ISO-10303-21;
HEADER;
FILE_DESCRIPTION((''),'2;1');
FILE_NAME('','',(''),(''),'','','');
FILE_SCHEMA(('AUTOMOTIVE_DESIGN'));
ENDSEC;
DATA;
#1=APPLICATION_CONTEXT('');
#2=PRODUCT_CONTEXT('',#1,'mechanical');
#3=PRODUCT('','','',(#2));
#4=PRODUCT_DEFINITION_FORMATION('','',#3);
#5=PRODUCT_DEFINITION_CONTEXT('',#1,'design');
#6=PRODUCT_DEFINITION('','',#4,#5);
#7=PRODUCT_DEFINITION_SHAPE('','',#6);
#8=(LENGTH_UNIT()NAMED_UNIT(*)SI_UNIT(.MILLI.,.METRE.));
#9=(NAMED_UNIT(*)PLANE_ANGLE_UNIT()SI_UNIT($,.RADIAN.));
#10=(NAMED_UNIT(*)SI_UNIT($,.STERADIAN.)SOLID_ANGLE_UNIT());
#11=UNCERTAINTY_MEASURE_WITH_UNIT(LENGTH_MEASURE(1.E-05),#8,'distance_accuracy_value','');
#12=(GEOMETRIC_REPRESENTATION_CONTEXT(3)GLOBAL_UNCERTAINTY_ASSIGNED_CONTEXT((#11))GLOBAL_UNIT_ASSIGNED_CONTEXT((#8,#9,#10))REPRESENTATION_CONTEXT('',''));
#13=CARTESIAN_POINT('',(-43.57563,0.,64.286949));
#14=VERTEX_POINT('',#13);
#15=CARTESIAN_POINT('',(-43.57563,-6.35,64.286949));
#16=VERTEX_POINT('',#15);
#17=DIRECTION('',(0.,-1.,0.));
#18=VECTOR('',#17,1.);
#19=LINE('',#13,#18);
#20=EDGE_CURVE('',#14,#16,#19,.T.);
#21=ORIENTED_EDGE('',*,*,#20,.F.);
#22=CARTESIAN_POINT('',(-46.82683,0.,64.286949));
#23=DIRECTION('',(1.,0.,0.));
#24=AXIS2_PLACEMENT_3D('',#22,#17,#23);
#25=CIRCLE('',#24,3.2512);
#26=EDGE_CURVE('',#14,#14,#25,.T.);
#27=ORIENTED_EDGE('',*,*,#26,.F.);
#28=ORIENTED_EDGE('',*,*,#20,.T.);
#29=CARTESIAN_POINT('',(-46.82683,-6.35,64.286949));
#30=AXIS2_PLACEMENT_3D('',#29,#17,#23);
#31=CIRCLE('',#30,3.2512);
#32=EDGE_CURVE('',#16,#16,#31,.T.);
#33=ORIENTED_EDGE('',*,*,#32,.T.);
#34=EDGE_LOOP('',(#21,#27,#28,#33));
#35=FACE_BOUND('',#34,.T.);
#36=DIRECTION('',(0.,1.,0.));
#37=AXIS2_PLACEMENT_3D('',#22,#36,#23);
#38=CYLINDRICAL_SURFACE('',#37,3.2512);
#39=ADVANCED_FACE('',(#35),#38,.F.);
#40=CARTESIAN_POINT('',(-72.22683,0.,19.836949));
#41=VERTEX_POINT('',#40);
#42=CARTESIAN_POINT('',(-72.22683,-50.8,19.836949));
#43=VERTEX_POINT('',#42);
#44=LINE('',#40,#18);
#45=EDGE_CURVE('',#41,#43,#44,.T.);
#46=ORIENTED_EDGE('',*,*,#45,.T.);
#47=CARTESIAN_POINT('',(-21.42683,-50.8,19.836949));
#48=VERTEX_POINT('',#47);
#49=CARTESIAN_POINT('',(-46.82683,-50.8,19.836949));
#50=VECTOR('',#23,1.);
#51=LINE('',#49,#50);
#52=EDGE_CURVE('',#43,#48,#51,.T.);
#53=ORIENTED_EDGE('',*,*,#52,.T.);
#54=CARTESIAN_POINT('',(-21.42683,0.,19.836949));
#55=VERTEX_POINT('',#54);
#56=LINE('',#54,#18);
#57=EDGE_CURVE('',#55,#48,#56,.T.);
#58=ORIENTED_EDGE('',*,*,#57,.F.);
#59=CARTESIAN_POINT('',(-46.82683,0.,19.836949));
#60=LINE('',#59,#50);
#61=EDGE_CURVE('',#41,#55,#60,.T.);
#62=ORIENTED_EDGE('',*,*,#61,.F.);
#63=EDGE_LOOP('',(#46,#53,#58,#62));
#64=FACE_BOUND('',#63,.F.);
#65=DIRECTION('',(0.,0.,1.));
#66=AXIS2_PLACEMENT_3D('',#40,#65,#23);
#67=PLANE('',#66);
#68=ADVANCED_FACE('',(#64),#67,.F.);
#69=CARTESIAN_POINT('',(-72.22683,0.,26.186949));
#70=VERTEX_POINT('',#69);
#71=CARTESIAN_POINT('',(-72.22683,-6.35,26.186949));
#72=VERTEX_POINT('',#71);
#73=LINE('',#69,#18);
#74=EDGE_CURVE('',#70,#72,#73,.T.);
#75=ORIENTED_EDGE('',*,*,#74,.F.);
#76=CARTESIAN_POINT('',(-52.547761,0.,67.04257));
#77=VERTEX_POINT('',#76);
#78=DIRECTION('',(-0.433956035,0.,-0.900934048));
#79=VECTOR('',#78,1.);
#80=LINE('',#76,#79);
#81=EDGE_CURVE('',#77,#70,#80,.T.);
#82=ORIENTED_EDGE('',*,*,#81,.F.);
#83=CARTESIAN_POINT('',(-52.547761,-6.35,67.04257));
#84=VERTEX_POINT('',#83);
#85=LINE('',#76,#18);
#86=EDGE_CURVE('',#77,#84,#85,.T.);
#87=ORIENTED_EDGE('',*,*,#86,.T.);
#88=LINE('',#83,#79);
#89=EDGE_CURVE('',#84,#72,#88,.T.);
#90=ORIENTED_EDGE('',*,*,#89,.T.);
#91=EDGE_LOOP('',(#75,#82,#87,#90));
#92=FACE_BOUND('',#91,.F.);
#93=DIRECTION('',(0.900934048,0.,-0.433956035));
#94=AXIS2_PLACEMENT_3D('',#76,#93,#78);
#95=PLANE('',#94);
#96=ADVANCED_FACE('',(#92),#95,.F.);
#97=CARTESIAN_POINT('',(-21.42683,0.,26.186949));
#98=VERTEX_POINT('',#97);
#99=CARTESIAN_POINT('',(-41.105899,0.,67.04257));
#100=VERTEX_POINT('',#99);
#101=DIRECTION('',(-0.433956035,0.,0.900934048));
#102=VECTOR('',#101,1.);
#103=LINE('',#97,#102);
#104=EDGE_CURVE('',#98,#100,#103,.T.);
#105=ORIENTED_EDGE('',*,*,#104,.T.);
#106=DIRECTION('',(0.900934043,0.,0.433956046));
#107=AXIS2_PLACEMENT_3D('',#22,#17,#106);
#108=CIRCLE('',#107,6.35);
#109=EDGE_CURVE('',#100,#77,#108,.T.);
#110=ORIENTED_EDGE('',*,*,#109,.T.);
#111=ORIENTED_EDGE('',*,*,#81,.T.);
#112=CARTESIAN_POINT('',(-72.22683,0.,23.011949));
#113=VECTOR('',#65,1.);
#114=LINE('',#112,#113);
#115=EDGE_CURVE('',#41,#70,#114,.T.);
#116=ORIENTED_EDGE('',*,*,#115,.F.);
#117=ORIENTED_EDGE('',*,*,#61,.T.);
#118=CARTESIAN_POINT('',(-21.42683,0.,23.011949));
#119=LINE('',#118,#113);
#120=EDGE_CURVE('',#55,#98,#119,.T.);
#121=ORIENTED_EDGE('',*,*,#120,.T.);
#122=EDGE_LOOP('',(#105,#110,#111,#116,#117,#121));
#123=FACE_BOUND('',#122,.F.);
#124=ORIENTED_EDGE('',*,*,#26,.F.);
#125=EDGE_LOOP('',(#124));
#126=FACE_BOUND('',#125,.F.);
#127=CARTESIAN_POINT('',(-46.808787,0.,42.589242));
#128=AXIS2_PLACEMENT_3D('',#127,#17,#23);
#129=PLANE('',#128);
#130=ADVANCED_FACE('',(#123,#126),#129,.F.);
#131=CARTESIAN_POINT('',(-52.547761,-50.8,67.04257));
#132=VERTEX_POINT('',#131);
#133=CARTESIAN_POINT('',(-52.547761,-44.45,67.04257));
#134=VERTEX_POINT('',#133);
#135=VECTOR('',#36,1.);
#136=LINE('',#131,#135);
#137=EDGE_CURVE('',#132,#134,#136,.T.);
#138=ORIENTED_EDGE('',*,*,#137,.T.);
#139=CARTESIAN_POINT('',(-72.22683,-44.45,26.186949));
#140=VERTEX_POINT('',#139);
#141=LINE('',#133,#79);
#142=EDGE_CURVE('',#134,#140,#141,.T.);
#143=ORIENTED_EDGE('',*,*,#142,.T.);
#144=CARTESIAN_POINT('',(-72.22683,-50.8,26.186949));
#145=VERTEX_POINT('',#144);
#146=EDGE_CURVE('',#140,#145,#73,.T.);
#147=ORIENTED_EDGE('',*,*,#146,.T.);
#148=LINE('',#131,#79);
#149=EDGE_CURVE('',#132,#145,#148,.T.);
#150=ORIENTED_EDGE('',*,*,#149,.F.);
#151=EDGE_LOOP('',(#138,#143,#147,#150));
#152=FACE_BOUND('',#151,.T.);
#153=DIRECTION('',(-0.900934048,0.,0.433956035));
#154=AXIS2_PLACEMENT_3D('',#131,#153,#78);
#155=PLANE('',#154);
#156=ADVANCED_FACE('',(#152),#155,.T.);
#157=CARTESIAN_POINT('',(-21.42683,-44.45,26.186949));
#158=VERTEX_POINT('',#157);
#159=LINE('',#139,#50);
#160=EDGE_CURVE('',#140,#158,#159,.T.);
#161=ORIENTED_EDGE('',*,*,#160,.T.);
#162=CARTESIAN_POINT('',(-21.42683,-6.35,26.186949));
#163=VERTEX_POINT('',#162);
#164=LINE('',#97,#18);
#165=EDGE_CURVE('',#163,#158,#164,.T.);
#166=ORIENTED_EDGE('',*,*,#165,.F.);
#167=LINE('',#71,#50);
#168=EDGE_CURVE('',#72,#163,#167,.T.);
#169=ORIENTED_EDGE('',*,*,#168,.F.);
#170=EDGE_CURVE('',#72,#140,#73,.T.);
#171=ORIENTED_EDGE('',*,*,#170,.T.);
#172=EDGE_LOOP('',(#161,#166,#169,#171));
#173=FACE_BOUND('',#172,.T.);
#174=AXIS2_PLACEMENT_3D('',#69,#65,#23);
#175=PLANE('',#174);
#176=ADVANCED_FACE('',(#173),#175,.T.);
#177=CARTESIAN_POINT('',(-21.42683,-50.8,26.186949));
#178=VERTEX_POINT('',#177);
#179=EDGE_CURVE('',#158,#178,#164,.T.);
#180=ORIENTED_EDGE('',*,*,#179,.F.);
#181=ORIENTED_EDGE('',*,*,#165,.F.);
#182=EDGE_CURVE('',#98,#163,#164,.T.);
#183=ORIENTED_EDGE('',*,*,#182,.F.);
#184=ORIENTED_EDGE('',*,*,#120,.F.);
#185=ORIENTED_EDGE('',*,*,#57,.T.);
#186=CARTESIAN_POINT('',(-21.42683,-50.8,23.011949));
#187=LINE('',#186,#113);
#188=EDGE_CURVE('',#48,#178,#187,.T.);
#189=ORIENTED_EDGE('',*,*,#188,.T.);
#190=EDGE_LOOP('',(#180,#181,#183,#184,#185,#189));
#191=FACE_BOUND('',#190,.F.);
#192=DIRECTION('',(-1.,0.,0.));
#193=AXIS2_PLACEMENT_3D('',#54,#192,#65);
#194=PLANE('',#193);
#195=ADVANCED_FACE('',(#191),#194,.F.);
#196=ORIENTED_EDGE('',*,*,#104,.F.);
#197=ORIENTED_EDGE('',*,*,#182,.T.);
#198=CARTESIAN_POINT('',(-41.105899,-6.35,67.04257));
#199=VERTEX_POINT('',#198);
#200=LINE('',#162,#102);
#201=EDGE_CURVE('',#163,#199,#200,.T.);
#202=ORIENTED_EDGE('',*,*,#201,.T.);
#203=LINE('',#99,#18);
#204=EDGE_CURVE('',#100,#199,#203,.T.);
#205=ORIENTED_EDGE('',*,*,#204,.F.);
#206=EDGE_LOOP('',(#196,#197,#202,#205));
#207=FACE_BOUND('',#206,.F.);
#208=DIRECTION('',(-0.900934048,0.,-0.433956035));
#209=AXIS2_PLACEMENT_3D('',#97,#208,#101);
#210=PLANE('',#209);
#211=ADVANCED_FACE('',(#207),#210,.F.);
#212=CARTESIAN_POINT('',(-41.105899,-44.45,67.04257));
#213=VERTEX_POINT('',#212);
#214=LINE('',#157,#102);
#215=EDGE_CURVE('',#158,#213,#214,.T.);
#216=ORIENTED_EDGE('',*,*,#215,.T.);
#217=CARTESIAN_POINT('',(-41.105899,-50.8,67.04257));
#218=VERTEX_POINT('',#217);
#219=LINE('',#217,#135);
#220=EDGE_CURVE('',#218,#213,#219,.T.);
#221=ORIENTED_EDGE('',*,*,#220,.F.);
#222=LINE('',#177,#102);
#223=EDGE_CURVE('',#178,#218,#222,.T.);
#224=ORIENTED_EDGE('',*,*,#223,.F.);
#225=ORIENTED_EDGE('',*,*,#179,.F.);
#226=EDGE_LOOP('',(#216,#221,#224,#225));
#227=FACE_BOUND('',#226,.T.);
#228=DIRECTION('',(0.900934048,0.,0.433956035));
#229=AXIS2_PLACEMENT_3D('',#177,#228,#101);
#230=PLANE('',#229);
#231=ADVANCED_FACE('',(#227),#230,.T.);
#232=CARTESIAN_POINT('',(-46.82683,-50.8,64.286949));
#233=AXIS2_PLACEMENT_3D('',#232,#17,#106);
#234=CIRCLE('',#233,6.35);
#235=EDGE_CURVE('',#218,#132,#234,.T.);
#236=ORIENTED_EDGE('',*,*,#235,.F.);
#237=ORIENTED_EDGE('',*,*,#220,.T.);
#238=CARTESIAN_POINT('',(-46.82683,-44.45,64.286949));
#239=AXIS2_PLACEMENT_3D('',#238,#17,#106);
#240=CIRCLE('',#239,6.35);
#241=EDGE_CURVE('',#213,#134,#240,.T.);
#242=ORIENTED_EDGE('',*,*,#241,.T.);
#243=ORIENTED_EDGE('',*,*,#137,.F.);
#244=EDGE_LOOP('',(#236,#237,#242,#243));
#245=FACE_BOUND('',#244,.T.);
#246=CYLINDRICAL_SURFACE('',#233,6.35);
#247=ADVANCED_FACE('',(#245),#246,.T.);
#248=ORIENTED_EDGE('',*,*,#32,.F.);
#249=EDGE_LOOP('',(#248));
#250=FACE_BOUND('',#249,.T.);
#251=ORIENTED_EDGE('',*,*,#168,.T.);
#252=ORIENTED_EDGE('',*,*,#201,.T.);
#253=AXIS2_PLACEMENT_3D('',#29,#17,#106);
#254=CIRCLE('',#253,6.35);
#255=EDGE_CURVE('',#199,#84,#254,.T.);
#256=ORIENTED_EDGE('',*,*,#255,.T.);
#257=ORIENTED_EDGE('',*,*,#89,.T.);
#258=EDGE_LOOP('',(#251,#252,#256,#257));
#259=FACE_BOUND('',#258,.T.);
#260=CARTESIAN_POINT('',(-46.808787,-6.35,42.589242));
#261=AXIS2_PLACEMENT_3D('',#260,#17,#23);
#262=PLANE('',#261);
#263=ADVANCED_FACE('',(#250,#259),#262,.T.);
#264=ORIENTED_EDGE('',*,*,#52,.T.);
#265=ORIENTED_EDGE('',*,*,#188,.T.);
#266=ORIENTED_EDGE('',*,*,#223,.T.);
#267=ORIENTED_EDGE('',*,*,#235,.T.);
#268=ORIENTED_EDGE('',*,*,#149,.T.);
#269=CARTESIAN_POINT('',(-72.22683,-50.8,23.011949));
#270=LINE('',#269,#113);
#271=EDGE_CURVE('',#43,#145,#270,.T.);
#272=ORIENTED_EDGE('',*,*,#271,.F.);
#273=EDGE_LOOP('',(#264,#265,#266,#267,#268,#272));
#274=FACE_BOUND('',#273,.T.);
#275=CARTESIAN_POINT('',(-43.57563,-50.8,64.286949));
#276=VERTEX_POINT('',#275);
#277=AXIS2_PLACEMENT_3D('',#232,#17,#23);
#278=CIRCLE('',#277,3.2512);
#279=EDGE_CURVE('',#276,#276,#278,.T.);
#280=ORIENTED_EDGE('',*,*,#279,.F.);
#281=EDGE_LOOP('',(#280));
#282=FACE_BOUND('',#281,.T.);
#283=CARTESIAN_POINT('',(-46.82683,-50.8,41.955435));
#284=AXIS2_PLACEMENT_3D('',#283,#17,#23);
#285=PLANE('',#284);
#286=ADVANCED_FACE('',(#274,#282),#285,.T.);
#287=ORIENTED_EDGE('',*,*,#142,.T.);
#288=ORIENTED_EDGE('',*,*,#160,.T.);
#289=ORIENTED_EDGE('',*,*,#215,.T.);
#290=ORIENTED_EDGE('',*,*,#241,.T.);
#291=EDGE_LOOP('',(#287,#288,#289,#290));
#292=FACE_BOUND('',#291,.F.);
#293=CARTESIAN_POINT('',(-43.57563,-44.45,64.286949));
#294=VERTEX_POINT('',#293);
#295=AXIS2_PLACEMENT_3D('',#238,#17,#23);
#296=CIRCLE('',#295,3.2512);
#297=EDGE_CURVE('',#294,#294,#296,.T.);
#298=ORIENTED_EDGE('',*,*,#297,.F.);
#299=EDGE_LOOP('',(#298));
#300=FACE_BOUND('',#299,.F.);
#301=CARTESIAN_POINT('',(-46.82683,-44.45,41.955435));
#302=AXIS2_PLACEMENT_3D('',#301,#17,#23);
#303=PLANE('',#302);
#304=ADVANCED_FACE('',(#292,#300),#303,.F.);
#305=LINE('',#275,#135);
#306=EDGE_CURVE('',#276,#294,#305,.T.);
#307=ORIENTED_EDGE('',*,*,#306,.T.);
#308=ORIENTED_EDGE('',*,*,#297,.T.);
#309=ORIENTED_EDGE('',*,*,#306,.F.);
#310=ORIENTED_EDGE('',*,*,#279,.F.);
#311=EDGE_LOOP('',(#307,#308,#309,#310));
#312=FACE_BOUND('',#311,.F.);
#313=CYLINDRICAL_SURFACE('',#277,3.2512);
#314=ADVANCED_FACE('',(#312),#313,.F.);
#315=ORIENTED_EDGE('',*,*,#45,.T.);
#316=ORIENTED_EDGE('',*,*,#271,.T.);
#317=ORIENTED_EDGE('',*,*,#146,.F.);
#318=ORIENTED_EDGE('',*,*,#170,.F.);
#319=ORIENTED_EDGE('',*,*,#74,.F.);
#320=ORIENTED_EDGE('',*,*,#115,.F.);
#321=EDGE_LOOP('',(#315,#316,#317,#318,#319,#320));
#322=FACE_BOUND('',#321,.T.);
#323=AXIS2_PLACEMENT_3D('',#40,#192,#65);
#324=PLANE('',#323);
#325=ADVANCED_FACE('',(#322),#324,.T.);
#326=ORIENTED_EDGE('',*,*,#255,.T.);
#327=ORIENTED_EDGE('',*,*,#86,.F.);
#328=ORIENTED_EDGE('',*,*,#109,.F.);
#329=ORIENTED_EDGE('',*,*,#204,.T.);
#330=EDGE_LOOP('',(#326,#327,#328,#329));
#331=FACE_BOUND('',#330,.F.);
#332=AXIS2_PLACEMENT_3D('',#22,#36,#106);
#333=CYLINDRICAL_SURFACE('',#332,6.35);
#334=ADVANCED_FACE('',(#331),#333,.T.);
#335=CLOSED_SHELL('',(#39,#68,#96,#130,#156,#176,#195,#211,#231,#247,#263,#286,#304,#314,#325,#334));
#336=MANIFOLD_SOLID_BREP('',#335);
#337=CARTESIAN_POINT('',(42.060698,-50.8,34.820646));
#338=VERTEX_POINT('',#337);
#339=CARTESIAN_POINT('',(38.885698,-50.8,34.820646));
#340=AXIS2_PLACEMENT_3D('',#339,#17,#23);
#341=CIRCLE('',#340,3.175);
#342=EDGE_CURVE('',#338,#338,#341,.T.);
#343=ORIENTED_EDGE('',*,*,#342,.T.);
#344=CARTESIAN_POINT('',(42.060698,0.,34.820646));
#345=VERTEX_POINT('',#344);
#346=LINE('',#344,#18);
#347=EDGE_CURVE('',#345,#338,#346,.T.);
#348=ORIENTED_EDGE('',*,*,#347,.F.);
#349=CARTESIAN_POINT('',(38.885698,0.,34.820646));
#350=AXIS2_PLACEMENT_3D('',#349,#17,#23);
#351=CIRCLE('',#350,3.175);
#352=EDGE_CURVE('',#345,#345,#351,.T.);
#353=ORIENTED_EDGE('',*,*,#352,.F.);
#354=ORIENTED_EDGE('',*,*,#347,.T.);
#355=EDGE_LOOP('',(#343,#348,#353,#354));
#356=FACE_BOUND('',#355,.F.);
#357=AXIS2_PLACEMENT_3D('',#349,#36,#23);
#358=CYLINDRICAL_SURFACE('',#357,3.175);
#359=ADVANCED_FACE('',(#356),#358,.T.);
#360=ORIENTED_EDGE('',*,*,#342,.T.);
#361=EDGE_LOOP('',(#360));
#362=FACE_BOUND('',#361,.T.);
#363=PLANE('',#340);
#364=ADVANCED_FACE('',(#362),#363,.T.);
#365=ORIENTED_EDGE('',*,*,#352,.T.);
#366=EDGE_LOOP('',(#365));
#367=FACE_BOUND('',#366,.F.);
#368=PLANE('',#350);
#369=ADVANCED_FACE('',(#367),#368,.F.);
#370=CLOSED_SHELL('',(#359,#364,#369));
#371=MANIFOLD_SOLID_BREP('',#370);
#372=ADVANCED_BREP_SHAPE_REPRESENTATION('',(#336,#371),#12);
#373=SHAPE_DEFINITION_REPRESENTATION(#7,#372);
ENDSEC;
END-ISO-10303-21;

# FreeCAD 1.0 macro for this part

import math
import FreeCAD as App
import Part
import Sketcher
Q = App.Units.Quantity


def add_polygon(sketch, points):
    """Adds a closed chain of lines whose ends are joined by coincident constraints."""
    first, n = sketch.GeometryCount, len(points)
    for a, b in zip(points, points[1:] + points[:1]):
        sketch.addGeometry(Part.LineSegment(App.Vector(*a, 0), App.Vector(*b, 0)), False)
    for i in range(n):
        sketch.addConstraint(Sketcher.Constraint("Coincident", first + i, 2, first + (i + 1) % n, 1))

doc = App.newDocument("Part")
body = doc.addObject("PartDesign::Body", "Body")

# Sketch on XZ plane
sketch1 = doc.addObject("Sketcher::SketchObject", "Sketch")
body.addObject(sketch1)
sketch1.AttachmentSupport = (doc.XZ_Plane, [""])
sketch1.MapMode = "FlatFace"
sketch1.addGeometry(Part.Circle(App.Vector(38.9, 34.8, 0), App.Vector(0, 0, 1), 3.2), False)
sketch1.addConstraint([
    Sketcher.Constraint("Diameter", 0, Q("0.25 in")),
    Sketcher.Constraint("DistanceX", -1, 1, 0, 3, Q("38.885698 mm")),
    Sketcher.Constraint("DistanceY", -1, 1, 0, 3, Q("34.820646 mm")),
])
pad1 = doc.addObject("PartDesign::Pad", "Pad")
body.addObject(pad1)
pad1.Profile = sketch1
pad1.Length = Q("2 in")
body2 = doc.addObject("PartDesign::Body", "Body001")

# Sketch on XZ plane
sketch2 = doc.addObject("Sketcher::SketchObject", "Sketch001")
body2.addObject(sketch2)
sketch2.AttachmentSupport = (doc.getObject("XZ_Plane001"), [""])
sketch2.MapMode = "FlatFace"
add_polygon(sketch2, [(-72, 26), (-72, 20), (-21, 20), (-21, 26)])  # lines 0-3
sketch2.addConstraint([
    Sketcher.Constraint("Vertical", 0),
    Sketcher.Constraint("Horizontal", 1),
    Sketcher.Constraint("Vertical", 2),
    Sketcher.Constraint("Horizontal", 3),
    Sketcher.Constraint("DistanceX", 1, 1, 1, 2, Q("2 in")),
    Sketcher.Constraint("DistanceY", 0, 2, 0, 1, Q("0.25 in")),
    Sketcher.Constraint("DistanceX", 0, 2, -1, 1, Q("72.22683 mm")),
    Sketcher.Constraint("DistanceY", -1, 1, 0, 2, Q("19.836949 mm")),
])
pad2 = doc.addObject("PartDesign::Pad", "Pad001")
body2.addObject(pad2)
pad2.Profile = sketch2
pad2.Length = Q("2 in")

# Sketch on XZ plane
sketch3 = doc.addObject("Sketcher::SketchObject", "Sketch002")
body2.addObject(sketch3)
sketch3.AttachmentSupport = (doc.getObject("XZ_Plane001"), [""])
sketch3.MapMode = "FlatFace"
sketch3.addGeometry([
    Part.LineSegment(App.Vector(-21.4, 26.2, 0), App.Vector(-41.1, 67, 0)),  # 0
    Part.ArcOfCircle(Part.Circle(App.Vector(-46.8, 64.3, 0), App.Vector(0, 0, 1), 6.3), math.radians(26), math.radians(154)),  # 1
    Part.LineSegment(App.Vector(-52.5, 67, 0), App.Vector(-72.2, 26.2, 0)),  # 2
    Part.LineSegment(App.Vector(-72.2, 26.2, 0), App.Vector(-21.4, 26.2, 0)),  # 3
    Part.Circle(App.Vector(-46.8, 64.3, 0), App.Vector(0, 0, 1), 3.3),  # 4
], False)
sketch3.addConstraint([
    Sketcher.Constraint("Tangent", 0, 2, 1, 1),
    Sketcher.Constraint("Tangent", 1, 2, 2, 1),
    Sketcher.Constraint("Coincident", 2, 2, 3, 1),
    Sketcher.Constraint("Coincident", 3, 2, 0, 1),
    Sketcher.Constraint("Horizontal", 3),
    Sketcher.Constraint("Coincident", 4, 3, 1, 3),
    Sketcher.Constraint("Horizontal", 0, 2, 1, 2),
    Sketcher.Constraint("DistanceX", 3, 1, 3, 2, Q("2 in")),
    Sketcher.Constraint("Radius", 1, Q("0.25 in")),
    Sketcher.Constraint("Diameter", 4, Q("0.256 in")),
    Sketcher.Constraint("DistanceY", 2, 2, 4, 3, Q("1.5 in")),
    Sketcher.Constraint("DistanceX", 0, 2, -1, 1, Q("41.105899 mm")),
    Sketcher.Constraint("DistanceY", -1, 1, 1, 3, Q("64.286949 mm")),
])
pad3 = doc.addObject("PartDesign::Pad", "Pad002")
body2.addObject(pad3)
pad3.Profile = sketch3
pad3.Length = Q("0.25 in")

# Sketch on XZ plane
sketch4 = doc.addObject("Sketcher::SketchObject", "Sketch003")
body2.addObject(sketch4)
sketch4.AttachmentSupport = (doc.getObject("XZ_Plane001"), [""])
sketch4.MapMode = "FlatFace"
sketch4.AttachmentOffset = App.Placement(App.Vector(0, 0, 2 * 25.4), App.Rotation())
sketch4.addGeometry([
    Part.ArcOfCircle(Part.Circle(App.Vector(-46.8, 64.3, 0), App.Vector(0, 0, 1), 6.3), math.radians(26), math.radians(154)),  # 0
    Part.LineSegment(App.Vector(-52.5, 67, 0), App.Vector(-72.2, 26.2, 0)),  # 1
    Part.LineSegment(App.Vector(-72.2, 26.2, 0), App.Vector(-21.4, 26.2, 0)),  # 2
    Part.LineSegment(App.Vector(-21.4, 26.2, 0), App.Vector(-41.1, 67, 0)),  # 3
    Part.Circle(App.Vector(-46.8, 64.3, 0), App.Vector(0, 0, 1), 3.3),  # 4
], False)
sketch4.addConstraint([
    Sketcher.Constraint("Tangent", 0, 2, 1, 1),
    Sketcher.Constraint("Coincident", 1, 2, 2, 1),
    Sketcher.Constraint("Coincident", 2, 2, 3, 1),
    Sketcher.Constraint("Tangent", 3, 2, 0, 1),
    Sketcher.Constraint("Horizontal", 2),
    Sketcher.Constraint("Coincident", 4, 3, 0, 3),
    Sketcher.Constraint("Horizontal", 0, 2, 3, 2),
    Sketcher.Constraint("DistanceX", 2, 1, 2, 2, Q("2 in")),
    Sketcher.Constraint("Radius", 0, Q("0.25 in")),
    Sketcher.Constraint("Diameter", 4, Q("0.256 in")),
    Sketcher.Constraint("DistanceY", 1, 2, 4, 3, Q("1.5 in")),
    Sketcher.Constraint("DistanceX", 3, 2, -1, 1, Q("41.105899 mm")),
    Sketcher.Constraint("DistanceY", -1, 1, 0, 3, Q("64.286949 mm")),
])
pad4 = doc.addObject("PartDesign::Pad", "Pad003")
body2.addObject(pad4)
pad4.Profile = sketch4
pad4.Length = Q("0.25 in")
pad4.Reversed = True

doc.recompute()
